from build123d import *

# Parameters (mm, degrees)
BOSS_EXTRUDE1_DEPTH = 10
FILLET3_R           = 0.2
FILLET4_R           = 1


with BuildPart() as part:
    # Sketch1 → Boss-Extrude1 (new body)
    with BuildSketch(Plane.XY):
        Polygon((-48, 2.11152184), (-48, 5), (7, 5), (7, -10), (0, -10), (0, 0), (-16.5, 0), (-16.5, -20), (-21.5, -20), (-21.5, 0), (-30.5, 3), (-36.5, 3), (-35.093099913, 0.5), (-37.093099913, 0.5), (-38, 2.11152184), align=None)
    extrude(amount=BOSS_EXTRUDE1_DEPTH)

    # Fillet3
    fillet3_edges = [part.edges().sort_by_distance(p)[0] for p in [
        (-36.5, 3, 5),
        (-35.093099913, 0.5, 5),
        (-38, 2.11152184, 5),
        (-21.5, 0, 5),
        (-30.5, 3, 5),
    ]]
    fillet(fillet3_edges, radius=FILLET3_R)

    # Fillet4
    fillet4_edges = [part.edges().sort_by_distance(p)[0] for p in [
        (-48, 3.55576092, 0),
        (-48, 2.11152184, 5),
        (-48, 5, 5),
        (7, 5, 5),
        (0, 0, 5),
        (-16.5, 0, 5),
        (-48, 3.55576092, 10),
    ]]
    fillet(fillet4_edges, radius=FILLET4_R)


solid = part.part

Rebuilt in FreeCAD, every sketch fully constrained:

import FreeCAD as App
import Part
import Sketcher

V = App.Vector
Q = App.Units.Quantity


def edges_at(feature, points):
    """Names of the edges that pass closest to the given points."""
    edges = feature.Shape.Edges
    near = lambda p: min(range(len(edges)), key=lambda i: edges[i].distToShape(Part.Vertex(*p))[0])
    return sorted({f"Edge{near(p) + 1}" for p in points})


def add_polygon(sketch, points):
    """Adds a closed chain of lines whose ends are joined by coincident constraints."""
    first, n = sketch.GeometryCount, len(points)
    for a, b in zip(points, points[1:] + points[:1]):
        sketch.addGeometry(Part.LineSegment(App.Vector(*a, 0), App.Vector(*b, 0)), False)
    for i in range(n):
        sketch.addConstraint(Sketcher.Constraint("Coincident", first + i, 2, first + (i + 1) % n, 1))

doc = App.newDocument("Part")
body = doc.addObject("PartDesign::Body", "Body")

sketch1 = doc.addObject("Sketcher::SketchObject", "Sketch")
body.addObject(sketch1)
sketch1.AttachmentSupport = (doc.XY_Plane, [""])
sketch1.MapMode = "FlatFace"
add_polygon(sketch1, [(-48, 5), (-48, 2.111522), (-38, 2.111522), (-37.0931, 0.5), (-35.0931, 0.5), (-36.5, 3), (-30.5, 3), (-21.5, 0), (-21.5, -20), (-16.5, -20), (-16.5, 0), (0, 0), (0, -10), (7, -10), (7, 5)])
sketch1.addConstraint([
    Sketcher.Constraint("Vertical", 0),
    Sketcher.Constraint("Horizontal", 1),
    Sketcher.Constraint("Horizontal", 3),
    Sketcher.Constraint("Horizontal", 5),
    Sketcher.Constraint("Vertical", 7),
    Sketcher.Constraint("Horizontal", 8),
    Sketcher.Constraint("Vertical", 9),
    Sketcher.Constraint("Horizontal", 10),
    Sketcher.Constraint("Vertical", 11),
    Sketcher.Constraint("Horizontal", 12),
    Sketcher.Constraint("Vertical", 13),
    Sketcher.Constraint("Horizontal", 14),
    Sketcher.Constraint("Coincident", 10, 2, -1, 1),
    Sketcher.Constraint("PointOnObject", 6, 2, -1),
    Sketcher.Constraint("Parallel", 2, 4),
    Sketcher.Constraint("Equal", 1, 11),
    Sketcher.Constraint("DistanceX", 1, 1, 1, 2, Q("10 mm")),
    Sketcher.Constraint("DistanceX", 3, 1, 3, 2, Q("2 mm")),
    Sketcher.Constraint("DistanceX", 5, 1, 5, 2, Q("6 mm")),
    Sketcher.Constraint("DistanceX", 8, 1, 8, 2, Q("5 mm")),
    Sketcher.Constraint("DistanceX", 12, 1, 12, 2, Q("7 mm")),
    Sketcher.Constraint("DistanceX", 14, 2, 14, 1, Q("55 mm")),
    Sketcher.Constraint("DistanceY", 7, 2, 7, 1, Q("20 mm")),
    Sketcher.Constraint("DistanceY", 13, 1, 13, 2, Q("15 mm")),
    Sketcher.Constraint("DistanceX", 10, 1, 10, 2, Q("16.5 mm")),
    Sketcher.Constraint("DistanceY", -1, 1, 4, 2, Q("3 mm")),
    Sketcher.Constraint("DistanceX", 5, 2, 6, 2, Q("9 mm")),
    Sketcher.Constraint("DistanceY", -1, 1, 2, 2, Q("0.5 mm")),
    Sketcher.Constraint("DistanceY", 0, 2, 0, 1, Q("2.888478 mm")),
])
pad1 = doc.addObject("PartDesign::Pad", "Pad")
body.addObject(pad1)
pad1.Profile = sketch1
pad1.Length = 10
doc.recompute()

fillet = doc.addObject("PartDesign::Fillet", "Fillet")
body.addObject(fillet)
fillet.Base = (pad1, edges_at(pad1, [
    (-36.5, 3, 5),
    (-35.093, 0.5, 5),
    (-38, 2.112, 5),
    (-21.5, 0, 5),
    (-30.5, 3, 5),
]))
fillet.Radius = 0.2
doc.recompute()

fillet2 = doc.addObject("PartDesign::Fillet", "Fillet001")
body.addObject(fillet2)
fillet2.Base = (fillet, edges_at(fillet, [
    (-48, 3.556, 0),
    (-48, 2.112, 5),
    (-48, 5, 5),
    (7, 5, 5),
    (0, 0, 5),
    (-16.5, 0, 5),
    (-48, 3.556, 10),
]))
fillet2.Radius = 1

doc.recompute()
